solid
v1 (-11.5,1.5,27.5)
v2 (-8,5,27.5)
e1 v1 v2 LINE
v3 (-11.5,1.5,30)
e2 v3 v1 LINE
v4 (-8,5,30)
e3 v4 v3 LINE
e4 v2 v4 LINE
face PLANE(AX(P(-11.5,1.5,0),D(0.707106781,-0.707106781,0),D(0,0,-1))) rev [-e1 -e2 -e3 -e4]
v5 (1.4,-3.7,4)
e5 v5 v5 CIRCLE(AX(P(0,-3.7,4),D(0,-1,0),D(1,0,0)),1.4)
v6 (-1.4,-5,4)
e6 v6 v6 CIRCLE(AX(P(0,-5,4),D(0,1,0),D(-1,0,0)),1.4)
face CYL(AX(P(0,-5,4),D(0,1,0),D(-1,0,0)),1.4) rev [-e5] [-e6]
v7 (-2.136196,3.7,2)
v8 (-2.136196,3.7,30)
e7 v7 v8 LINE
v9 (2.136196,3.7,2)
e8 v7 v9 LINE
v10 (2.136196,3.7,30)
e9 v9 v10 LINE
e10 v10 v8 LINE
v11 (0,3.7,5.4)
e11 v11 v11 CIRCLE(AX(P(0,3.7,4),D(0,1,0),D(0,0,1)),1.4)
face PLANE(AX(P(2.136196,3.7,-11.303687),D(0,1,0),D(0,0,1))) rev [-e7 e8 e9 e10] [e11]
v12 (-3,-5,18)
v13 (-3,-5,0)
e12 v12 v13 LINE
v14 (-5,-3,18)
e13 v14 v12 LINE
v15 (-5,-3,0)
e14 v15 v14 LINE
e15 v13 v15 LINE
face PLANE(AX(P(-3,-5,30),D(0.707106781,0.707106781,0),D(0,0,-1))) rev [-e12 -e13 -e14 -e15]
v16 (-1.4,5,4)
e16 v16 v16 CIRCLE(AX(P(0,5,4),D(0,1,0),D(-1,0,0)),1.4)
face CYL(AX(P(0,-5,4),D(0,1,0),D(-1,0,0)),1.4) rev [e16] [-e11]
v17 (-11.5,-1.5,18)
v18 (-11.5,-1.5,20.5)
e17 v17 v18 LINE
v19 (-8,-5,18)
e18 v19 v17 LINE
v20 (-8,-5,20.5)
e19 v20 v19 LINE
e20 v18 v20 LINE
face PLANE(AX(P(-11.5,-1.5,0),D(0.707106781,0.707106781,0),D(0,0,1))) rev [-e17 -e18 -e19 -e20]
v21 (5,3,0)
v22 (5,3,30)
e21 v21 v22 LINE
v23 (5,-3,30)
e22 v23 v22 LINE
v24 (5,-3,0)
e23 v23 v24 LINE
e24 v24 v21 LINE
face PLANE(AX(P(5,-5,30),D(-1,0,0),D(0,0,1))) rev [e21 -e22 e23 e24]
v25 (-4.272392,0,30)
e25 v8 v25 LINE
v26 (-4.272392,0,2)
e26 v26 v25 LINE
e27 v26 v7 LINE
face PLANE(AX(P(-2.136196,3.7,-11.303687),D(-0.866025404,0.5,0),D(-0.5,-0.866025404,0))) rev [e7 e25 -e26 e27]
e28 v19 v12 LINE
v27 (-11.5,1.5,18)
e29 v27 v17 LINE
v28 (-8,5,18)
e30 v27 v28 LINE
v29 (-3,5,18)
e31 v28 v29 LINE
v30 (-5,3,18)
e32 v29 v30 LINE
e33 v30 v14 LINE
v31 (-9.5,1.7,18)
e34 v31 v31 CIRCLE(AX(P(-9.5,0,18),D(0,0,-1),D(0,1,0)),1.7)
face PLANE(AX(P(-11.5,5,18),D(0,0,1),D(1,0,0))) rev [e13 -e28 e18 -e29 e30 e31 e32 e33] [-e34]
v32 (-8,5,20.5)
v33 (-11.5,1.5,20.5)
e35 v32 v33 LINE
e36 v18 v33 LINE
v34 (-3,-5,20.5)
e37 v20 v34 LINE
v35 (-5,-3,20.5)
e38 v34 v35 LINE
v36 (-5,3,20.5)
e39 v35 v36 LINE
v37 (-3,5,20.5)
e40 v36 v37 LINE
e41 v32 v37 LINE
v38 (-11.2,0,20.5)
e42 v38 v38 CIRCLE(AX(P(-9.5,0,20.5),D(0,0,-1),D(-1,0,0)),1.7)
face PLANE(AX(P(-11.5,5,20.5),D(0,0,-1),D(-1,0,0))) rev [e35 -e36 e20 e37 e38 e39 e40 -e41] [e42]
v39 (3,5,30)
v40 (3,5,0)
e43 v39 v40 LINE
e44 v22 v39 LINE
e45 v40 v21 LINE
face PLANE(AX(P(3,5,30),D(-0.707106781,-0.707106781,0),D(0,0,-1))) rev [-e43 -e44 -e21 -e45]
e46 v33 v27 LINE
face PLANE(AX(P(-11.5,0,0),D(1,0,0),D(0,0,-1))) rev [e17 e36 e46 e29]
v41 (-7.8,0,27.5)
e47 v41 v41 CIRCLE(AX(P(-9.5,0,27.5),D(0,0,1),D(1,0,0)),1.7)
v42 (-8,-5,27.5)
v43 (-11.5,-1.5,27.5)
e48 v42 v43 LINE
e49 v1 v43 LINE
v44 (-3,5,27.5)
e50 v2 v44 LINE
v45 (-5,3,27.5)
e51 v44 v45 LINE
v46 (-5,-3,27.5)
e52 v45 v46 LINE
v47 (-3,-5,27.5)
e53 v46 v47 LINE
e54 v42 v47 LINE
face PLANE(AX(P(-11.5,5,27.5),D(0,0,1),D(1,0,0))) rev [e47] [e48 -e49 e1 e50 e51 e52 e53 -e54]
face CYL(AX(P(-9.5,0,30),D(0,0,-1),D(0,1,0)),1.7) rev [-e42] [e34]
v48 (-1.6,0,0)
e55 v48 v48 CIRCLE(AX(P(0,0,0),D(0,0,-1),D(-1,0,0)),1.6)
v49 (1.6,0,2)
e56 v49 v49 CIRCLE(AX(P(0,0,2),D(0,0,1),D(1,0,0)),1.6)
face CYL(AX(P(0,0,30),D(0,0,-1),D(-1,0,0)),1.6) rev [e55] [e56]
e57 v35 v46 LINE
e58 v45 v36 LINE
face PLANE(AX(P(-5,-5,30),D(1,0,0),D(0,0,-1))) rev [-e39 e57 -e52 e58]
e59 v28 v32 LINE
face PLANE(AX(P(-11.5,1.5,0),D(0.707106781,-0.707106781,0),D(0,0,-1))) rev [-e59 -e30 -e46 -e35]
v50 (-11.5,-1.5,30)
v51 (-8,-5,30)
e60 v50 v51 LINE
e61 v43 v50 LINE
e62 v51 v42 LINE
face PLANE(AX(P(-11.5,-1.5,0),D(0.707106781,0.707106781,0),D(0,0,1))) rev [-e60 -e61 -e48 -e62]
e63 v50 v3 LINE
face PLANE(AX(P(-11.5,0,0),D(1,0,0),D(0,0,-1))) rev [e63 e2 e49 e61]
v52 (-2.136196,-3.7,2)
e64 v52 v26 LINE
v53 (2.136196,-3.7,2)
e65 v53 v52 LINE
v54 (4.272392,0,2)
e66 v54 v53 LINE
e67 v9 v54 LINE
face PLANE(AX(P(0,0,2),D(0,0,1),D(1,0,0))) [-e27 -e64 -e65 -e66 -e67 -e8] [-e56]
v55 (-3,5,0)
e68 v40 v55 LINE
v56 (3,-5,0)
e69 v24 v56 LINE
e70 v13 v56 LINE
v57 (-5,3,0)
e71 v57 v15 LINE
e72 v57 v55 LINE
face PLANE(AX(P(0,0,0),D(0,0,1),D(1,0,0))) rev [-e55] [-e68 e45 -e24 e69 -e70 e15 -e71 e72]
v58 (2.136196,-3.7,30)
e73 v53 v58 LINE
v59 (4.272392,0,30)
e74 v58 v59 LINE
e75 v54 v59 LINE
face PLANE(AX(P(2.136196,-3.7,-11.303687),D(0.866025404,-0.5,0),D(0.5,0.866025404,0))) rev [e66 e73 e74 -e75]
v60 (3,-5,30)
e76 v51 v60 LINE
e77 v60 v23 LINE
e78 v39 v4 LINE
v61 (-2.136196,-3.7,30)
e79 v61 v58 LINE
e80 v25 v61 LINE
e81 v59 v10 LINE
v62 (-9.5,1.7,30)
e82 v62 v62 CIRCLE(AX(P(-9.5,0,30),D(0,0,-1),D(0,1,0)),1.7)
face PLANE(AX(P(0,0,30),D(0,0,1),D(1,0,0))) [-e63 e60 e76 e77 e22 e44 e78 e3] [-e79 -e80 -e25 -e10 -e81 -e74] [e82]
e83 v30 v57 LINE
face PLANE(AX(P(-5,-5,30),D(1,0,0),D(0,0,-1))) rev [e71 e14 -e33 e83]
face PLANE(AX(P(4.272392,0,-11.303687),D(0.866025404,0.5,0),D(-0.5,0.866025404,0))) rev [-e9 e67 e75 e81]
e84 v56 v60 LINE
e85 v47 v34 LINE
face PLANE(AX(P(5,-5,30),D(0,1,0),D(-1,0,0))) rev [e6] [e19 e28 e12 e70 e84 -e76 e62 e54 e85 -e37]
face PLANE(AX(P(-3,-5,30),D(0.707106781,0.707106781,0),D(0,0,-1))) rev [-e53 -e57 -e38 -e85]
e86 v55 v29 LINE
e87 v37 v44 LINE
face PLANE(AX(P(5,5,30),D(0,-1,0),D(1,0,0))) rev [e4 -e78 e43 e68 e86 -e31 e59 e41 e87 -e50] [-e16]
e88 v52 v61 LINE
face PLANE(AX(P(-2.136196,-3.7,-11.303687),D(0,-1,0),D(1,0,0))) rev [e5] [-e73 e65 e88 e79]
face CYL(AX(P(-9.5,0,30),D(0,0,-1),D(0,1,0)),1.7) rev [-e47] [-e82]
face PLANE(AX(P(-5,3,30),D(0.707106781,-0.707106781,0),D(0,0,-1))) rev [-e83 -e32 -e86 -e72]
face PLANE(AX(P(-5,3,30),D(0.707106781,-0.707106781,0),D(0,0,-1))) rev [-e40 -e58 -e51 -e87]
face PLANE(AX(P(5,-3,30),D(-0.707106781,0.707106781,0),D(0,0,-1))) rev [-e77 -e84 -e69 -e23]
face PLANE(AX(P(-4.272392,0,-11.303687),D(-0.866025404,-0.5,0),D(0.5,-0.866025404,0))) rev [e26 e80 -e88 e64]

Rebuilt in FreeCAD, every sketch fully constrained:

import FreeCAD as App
import Part
import Sketcher
Q = App.Units.Quantity


def edges_at(feature, points):
    """Names of the edges that pass closest to the given points."""
    edges = feature.Shape.Edges
    near = lambda p: min(range(len(edges)), key=lambda i: edges[i].distToShape(Part.Vertex(*p))[0])
    return sorted({f"Edge{near(p) + 1}" for p in points})

doc = App.newDocument("Part")
body = doc.addObject("PartDesign::Body", "Body")

# Sketch on XY plane
sketch1 = doc.addObject("Sketcher::SketchObject", "Sketch")
body.addObject(sketch1)
sketch1.AttachmentSupport = (doc.XY_Plane, [""])
sketch1.MapMode = "FlatFace"
sketch1.addGeometry(Part.LineSegment(App.Vector(-5, 5, 0), App.Vector(-5, -5, 0)), False)
sketch1.addGeometry(Part.LineSegment(App.Vector(-5, -5, 0), App.Vector(5, -5, 0)), False)
sketch1.addGeometry(Part.LineSegment(App.Vector(5, -5, 0), App.Vector(5, 5, 0)), False)
sketch1.addGeometry(Part.LineSegment(App.Vector(5, 5, 0), App.Vector(-5, 5, 0)), False)
sketch1.addConstraint(Sketcher.Constraint("Coincident", 0, 2, 1, 1))
sketch1.addConstraint(Sketcher.Constraint("Coincident", 1, 2, 2, 1))
sketch1.addConstraint(Sketcher.Constraint("Coincident", 2, 2, 3, 1))
sketch1.addConstraint(Sketcher.Constraint("Coincident", 3, 2, 0, 1))
sketch1.addConstraint(Sketcher.Constraint("Vertical", 0))
sketch1.addConstraint(Sketcher.Constraint("Horizontal", 1))
sketch1.addConstraint(Sketcher.Constraint("Vertical", 2))
sketch1.addConstraint(Sketcher.Constraint("Horizontal", 3))
sketch1.addConstraint(Sketcher.Constraint("Symmetric", 0, 2, 2, 2, -1, 1))
sketch1.addConstraint(Sketcher.Constraint("Equal", 3, 0))
sketch1.addConstraint(Sketcher.Constraint("DistanceX", 1, 1, 1, 2, Q("10 mm")))
pad1 = doc.addObject("PartDesign::Pad", "Pad")
body.addObject(pad1)
pad1.Profile = sketch1
pad1.Length = 30

# Sketch on XY plane
sketch2 = doc.addObject("Sketcher::SketchObject", "Sketch001")
body.addObject(sketch2)
sketch2.AttachmentSupport = (doc.XY_Plane, [""])
sketch2.MapMode = "FlatFace"
sketch2.AttachmentOffset = App.Placement(App.Vector(0, 0, 30), App.Rotation())
sketch2.addGeometry(Part.LineSegment(App.Vector(-4.3, 0, 0), App.Vector(-2.1, -3.7, 0)), False)
sketch2.addGeometry(Part.LineSegment(App.Vector(-2.1, -3.7, 0), App.Vector(2.1, -3.7, 0)), False)
sketch2.addGeometry(Part.LineSegment(App.Vector(2.1, -3.7, 0), App.Vector(4.3, 0, 0)), False)
sketch2.addGeometry(Part.LineSegment(App.Vector(4.3, 0, 0), App.Vector(2.1, 3.7, 0)), False)
sketch2.addGeometry(Part.LineSegment(App.Vector(2.1, 3.7, 0), App.Vector(-2.1, 3.7, 0)), False)
sketch2.addGeometry(Part.LineSegment(App.Vector(-2.1, 3.7, 0), App.Vector(-4.3, 0, 0)), False)
sketch2.addConstraint(Sketcher.Constraint("Coincident", 0, 2, 1, 1))
sketch2.addConstraint(Sketcher.Constraint("Coincident", 1, 2, 2, 1))
sketch2.addConstraint(Sketcher.Constraint("Coincident", 2, 2, 3, 1))
sketch2.addConstraint(Sketcher.Constraint("Coincident", 3, 2, 4, 1))
sketch2.addConstraint(Sketcher.Constraint("Coincident", 4, 2, 5, 1))
sketch2.addConstraint(Sketcher.Constraint("Coincident", 5, 2, 0, 1))
sketch2.addConstraint(Sketcher.Constraint("Horizontal", 1))
sketch2.addConstraint(Sketcher.Constraint("Horizontal", 4))
sketch2.addConstraint(Sketcher.Constraint("Symmetric", 0, 2, 3, 2, -1, 1))
sketch2.addConstraint(Sketcher.Constraint("Symmetric", 2, 2, 5, 2, -1, 1))
sketch2.addConstraint(Sketcher.Constraint("PointOnObject", 2, 2, -1))
sketch2.addConstraint(Sketcher.Constraint("Parallel", 2, 5))
sketch2.addConstraint(Sketcher.Constraint("Vertical", 1, 2, 3, 2))
sketch2.addConstraint(Sketcher.Constraint("Angle", 0, Q("-60 deg")))
sketch2.addConstraint(Sketcher.Constraint("DistanceY", 0, 2, -1, 1, Q("3.7 mm")))
sketch2.addConstraint(Sketcher.Constraint("DistanceX", 1, 1, 1, 2, Q("4.272392 mm")))
pocket1 = doc.addObject("PartDesign::Pocket", "Pocket")
body.addObject(pocket1)
pocket1.Profile = sketch2
pocket1.Length = 28

# Sketch on XY plane
sketch3 = doc.addObject("Sketcher::SketchObject", "Sketch002")
body.addObject(sketch3)
sketch3.AttachmentSupport = (doc.XY_Plane, [""])
sketch3.MapMode = "FlatFace"
sketch3.addGeometry(Part.Circle(App.Vector(0, 0, 0), App.Vector(0, 0, 1), 1.6), False)
sketch3.addConstraint(Sketcher.Constraint("Coincident", 0, 3, -1, 1))
sketch3.addConstraint(Sketcher.Constraint("Diameter", 0, Q("3.2 mm")))
pocket2 = doc.addObject("PartDesign::Pocket", "Pocket001")
body.addObject(pocket2)
pocket2.Profile = sketch3
pocket2.Type = "ThroughAll"
pocket2.Reversed = True

# Sketch on YZ plane
sketch4 = doc.addObject("Sketcher::SketchObject", "Sketch003")
body.addObject(sketch4)
sketch4.AttachmentSupport = (doc.YZ_Plane, [""])
sketch4.MapMode = "FlatFace"
sketch4.AttachmentOffset = App.Placement(App.Vector(0, 0, -5), App.Rotation())
sketch4.addGeometry(Part.LineSegment(App.Vector(5, 27.5, 0), App.Vector(-5, 27.5, 0)), False)
sketch4.addGeometry(Part.LineSegment(App.Vector(-5, 27.5, 0), App.Vector(-5, 30, 0)), False)
sketch4.addGeometry(Part.LineSegment(App.Vector(-5, 30, 0), App.Vector(5, 30, 0)), False)
sketch4.addGeometry(Part.LineSegment(App.Vector(5, 30, 0), App.Vector(5, 27.5, 0)), False)
sketch4.addGeometry(Part.LineSegment(App.Vector(5, 18, 0), App.Vector(-5, 18, 0)), False)
sketch4.addGeometry(Part.LineSegment(App.Vector(-5, 18, 0), App.Vector(-5, 20.5, 0)), False)
sketch4.addGeometry(Part.LineSegment(App.Vector(-5, 20.5, 0), App.Vector(5, 20.5, 0)), False)
sketch4.addGeometry(Part.LineSegment(App.Vector(5, 20.5, 0), App.Vector(5, 18, 0)), False)
sketch4.addConstraint(Sketcher.Constraint("Coincident", 0, 2, 1, 1))
sketch4.addConstraint(Sketcher.Constraint("Coincident", 1, 2, 2, 1))
sketch4.addConstraint(Sketcher.Constraint("Coincident", 2, 2, 3, 1))
sketch4.addConstraint(Sketcher.Constraint("Coincident", 3, 2, 0, 1))
sketch4.addConstraint(Sketcher.Constraint("Coincident", 4, 2, 5, 1))
sketch4.addConstraint(Sketcher.Constraint("Coincident", 5, 2, 6, 1))
sketch4.addConstraint(Sketcher.Constraint("Coincident", 6, 2, 7, 1))
sketch4.addConstraint(Sketcher.Constraint("Coincident", 7, 2, 4, 1))
sketch4.addConstraint(Sketcher.Constraint("Horizontal", 0))
sketch4.addConstraint(Sketcher.Constraint("Vertical", 1))
sketch4.addConstraint(Sketcher.Constraint("Horizontal", 2))
sketch4.addConstraint(Sketcher.Constraint("Vertical", 3))
sketch4.addConstraint(Sketcher.Constraint("Horizontal", 4))
sketch4.addConstraint(Sketcher.Constraint("Vertical", 5))
sketch4.addConstraint(Sketcher.Constraint("Horizontal", 6))
sketch4.addConstraint(Sketcher.Constraint("Vertical", 7))
sketch4.addConstraint(Sketcher.Constraint("Vertical", 1, 2, 4, 2))
sketch4.addConstraint(Sketcher.Constraint("Vertical", 3, 2, 6, 2))
sketch4.addConstraint(Sketcher.Constraint("Equal", 3, 5))
sketch4.addConstraint(Sketcher.Constraint("DistanceX", 0, 2, 0, 1, Q("10 mm")))
sketch4.addConstraint(Sketcher.Constraint("DistanceY", 1, 1, 1, 2, Q("2.5 mm")))
sketch4.addConstraint(Sketcher.Constraint("DistanceX", 0, 2, -1, 1, Q("5 mm")))
sketch4.addConstraint(Sketcher.Constraint("DistanceY", -1, 1, 1, 2, Q("30 mm")))
sketch4.addConstraint(Sketcher.Constraint("DistanceY", -1, 1, 4, 2, Q("18 mm")))
pad2 = doc.addObject("PartDesign::Pad", "Pad001")
body.addObject(pad2)
pad2.Profile = sketch4
pad2.Length = 6.5
pad2.Reversed = True
doc.recompute()

chamfer = doc.addObject("PartDesign::Chamfer", "Chamfer")
body.addObject(chamfer)
chamfer.Base = (pad2, edges_at(pad2, [
    (-11.5, -5, 28.75),
    (-11.5, 5, 28.75),
    (-11.5, -5, 19.25),
    (-11.5, 5, 19.25),
]))
chamfer.Size = 3.5

# Sketch on XY plane
sketch5 = doc.addObject("Sketcher::SketchObject", "Sketch004")
body.addObject(sketch5)
sketch5.AttachmentSupport = (doc.XY_Plane, [""])
sketch5.MapMode = "FlatFace"
sketch5.AttachmentOffset = App.Placement(App.Vector(0, 0, 18), App.Rotation())
sketch5.addGeometry(Part.Circle(App.Vector(-9.5, 0, 0), App.Vector(0, 0, 1), 1.7), False)
sketch5.addConstraint(Sketcher.Constraint("PointOnObject", 0, 3, -1))
sketch5.addConstraint(Sketcher.Constraint("Diameter", 0, Q("3.4 mm")))
sketch5.addConstraint(Sketcher.Constraint("DistanceX", 0, 3, -1, 1, Q("9.5 mm")))
pocket3 = doc.addObject("PartDesign::Pocket", "Pocket002")
body.addObject(pocket3)
pocket3.Profile = sketch5
pocket3.Type = "ThroughAll"
pocket3.Reversed = True
doc.recompute()

chamfer2 = doc.addObject("PartDesign::Chamfer", "Chamfer001")
body.addObject(chamfer2)
chamfer2.Base = (pocket3, edges_at(pocket3, [
    (-5, 5, 24),
    (-5, -5, 24),
    (5, -5, 15),
    (5, 5, 15),
    (-5, 5, 9),
    (-5, -5, 9),
]))
chamfer2.Size = 2

# Sketch on XZ plane
sketch6 = doc.addObject("Sketcher::SketchObject", "Sketch005")
body.addObject(sketch6)
sketch6.AttachmentSupport = (doc.XZ_Plane, [""])
sketch6.MapMode = "FlatFace"
sketch6.AttachmentOffset = App.Placement(App.Vector(0, 0, -5), App.Rotation())
sketch6.addGeometry(Part.Circle(App.Vector(0, 4, 0), App.Vector(0, 0, 1), 1.4), False)
sketch6.addConstraint(Sketcher.Constraint("PointOnObject", 0, 3, -2))
sketch6.addConstraint(Sketcher.Constraint("Diameter", 0, Q("2.8 mm")))
sketch6.addConstraint(Sketcher.Constraint("DistanceY", -1, 1, 0, 3, Q("4 mm")))
pocket4 = doc.addObject("PartDesign::Pocket", "Pocket003")
body.addObject(pocket4)
pocket4.Profile = sketch6
pocket4.Length = 10
pocket4.Reversed = True

doc.recompute()
